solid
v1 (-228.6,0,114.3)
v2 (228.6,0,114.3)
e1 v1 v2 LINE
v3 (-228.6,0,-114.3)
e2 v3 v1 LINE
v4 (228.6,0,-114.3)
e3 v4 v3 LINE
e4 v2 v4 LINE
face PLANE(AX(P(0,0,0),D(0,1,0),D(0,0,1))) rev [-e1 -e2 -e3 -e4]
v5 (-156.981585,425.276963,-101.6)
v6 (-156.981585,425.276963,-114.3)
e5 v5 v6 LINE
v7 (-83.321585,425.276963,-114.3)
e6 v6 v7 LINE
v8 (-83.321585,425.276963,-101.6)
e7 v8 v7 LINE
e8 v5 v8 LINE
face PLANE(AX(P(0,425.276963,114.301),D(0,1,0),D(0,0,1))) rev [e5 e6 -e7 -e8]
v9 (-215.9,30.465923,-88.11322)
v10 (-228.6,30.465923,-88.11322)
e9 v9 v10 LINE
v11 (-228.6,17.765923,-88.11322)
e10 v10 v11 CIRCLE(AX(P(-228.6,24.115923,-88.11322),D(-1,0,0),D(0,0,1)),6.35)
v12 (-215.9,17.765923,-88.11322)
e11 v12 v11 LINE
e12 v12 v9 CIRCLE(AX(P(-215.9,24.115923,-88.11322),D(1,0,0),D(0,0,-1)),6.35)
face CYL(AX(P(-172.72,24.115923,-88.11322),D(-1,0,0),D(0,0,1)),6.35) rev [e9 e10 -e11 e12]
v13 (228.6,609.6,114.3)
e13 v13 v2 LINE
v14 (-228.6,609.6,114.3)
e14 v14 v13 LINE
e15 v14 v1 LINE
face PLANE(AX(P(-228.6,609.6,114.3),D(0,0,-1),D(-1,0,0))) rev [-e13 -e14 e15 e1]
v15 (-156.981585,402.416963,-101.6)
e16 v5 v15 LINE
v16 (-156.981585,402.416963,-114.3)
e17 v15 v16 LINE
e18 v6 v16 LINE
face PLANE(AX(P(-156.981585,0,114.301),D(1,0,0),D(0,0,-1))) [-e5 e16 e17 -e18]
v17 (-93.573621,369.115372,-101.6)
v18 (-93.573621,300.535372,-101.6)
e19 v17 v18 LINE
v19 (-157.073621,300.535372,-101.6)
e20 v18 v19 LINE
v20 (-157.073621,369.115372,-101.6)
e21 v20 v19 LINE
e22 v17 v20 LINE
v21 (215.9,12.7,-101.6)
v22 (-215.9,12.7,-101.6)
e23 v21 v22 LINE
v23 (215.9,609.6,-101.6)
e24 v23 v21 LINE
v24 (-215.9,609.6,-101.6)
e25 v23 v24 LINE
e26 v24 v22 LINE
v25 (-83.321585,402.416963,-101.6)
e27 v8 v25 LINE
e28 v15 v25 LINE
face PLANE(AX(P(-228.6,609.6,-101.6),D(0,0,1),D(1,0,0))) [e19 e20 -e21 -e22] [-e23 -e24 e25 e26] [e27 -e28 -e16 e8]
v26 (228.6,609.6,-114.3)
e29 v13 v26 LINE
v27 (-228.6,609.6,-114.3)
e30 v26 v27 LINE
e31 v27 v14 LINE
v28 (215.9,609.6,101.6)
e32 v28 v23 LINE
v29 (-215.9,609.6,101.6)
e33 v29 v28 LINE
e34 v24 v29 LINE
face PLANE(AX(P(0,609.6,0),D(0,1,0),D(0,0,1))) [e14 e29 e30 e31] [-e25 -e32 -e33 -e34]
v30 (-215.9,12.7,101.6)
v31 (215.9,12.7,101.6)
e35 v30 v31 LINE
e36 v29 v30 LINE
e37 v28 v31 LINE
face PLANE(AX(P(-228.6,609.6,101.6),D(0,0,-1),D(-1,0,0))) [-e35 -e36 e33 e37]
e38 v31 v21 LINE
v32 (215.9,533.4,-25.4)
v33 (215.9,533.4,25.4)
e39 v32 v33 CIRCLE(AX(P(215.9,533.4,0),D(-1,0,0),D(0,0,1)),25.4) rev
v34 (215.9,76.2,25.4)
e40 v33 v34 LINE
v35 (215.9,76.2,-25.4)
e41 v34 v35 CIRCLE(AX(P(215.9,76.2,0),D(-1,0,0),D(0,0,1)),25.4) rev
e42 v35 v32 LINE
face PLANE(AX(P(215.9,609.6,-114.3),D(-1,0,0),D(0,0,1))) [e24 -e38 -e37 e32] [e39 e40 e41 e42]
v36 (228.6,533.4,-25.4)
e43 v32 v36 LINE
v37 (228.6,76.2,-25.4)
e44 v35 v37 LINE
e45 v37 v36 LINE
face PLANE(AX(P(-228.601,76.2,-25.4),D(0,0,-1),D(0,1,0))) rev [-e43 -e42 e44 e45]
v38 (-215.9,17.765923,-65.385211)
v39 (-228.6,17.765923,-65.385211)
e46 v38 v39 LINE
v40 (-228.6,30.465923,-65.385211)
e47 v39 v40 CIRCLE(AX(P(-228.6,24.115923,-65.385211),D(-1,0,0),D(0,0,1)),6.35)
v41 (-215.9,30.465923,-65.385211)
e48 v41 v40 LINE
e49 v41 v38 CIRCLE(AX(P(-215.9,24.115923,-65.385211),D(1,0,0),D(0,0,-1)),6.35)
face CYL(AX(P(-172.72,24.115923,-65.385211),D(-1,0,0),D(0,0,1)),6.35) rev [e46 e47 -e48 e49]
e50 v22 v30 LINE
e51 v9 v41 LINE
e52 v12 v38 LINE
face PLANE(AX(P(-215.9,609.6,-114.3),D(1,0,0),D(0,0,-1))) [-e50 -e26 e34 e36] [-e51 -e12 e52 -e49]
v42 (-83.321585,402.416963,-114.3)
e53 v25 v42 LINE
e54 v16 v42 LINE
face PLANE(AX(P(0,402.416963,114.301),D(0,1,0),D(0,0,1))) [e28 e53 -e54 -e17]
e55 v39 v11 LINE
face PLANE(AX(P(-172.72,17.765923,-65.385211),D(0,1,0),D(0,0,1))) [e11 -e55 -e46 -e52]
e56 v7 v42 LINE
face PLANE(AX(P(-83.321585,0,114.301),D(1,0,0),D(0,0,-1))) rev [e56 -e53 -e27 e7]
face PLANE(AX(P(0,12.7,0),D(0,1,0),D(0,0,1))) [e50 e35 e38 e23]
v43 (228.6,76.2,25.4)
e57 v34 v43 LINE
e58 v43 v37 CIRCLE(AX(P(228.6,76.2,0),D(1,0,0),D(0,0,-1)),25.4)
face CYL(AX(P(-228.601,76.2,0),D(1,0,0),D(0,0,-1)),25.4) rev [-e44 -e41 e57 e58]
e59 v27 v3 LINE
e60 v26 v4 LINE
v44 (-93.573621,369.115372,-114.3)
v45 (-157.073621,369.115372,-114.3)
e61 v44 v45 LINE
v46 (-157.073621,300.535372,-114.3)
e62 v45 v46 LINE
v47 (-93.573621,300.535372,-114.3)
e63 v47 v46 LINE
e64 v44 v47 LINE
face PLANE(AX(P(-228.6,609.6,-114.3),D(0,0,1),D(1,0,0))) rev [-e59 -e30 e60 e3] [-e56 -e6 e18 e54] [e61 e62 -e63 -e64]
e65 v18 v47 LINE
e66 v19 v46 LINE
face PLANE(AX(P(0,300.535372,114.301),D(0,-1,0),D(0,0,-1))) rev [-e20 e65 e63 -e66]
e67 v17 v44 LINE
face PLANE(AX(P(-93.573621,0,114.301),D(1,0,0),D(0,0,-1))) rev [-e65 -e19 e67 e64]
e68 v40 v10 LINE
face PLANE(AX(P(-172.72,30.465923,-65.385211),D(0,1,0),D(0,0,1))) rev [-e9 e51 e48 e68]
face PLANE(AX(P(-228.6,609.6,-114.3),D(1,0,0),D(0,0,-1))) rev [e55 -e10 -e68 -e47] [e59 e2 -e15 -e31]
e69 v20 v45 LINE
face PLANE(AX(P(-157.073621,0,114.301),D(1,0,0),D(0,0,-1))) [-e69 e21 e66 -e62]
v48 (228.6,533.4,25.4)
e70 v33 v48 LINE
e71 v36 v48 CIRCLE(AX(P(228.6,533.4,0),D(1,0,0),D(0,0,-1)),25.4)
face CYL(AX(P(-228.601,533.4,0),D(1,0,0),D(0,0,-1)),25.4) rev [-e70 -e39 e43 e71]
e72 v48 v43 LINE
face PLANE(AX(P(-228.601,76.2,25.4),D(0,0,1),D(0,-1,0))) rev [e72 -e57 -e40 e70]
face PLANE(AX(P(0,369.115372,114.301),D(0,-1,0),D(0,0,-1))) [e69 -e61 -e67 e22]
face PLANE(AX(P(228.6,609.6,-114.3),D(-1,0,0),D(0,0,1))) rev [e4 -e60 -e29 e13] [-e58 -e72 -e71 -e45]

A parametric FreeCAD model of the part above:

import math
import FreeCAD as App
import Part
import Sketcher
Q = App.Units.Quantity


def faces_at(feature, points):
    """Names of the faces that lie closest to the given points."""
    faces = feature.Shape.Faces
    near = lambda p: min(range(len(faces)), key=lambda i: faces[i].distToShape(Part.Vertex(*p))[0])
    return sorted({f"Face{near(p) + 1}" for p in points})

doc = App.newDocument("Part")
body = doc.addObject("PartDesign::Body", "Body")

# Sketch on XZ plane
sketch1 = doc.addObject("Sketcher::SketchObject", "Sketch")
body.addObject(sketch1)
sketch1.AttachmentSupport = (doc.XZ_Plane, [""])
sketch1.MapMode = "FlatFace"
sketch1.addGeometry([
    Part.LineSegment(App.Vector(-228.6, -114.3, 0), App.Vector(-228.6, 114.3, 0)),
    Part.LineSegment(App.Vector(-228.6, 114.3, 0), App.Vector(228.6, 114.3, 0)),
    Part.LineSegment(App.Vector(228.6, 114.3, 0), App.Vector(228.6, -114.3, 0)),
    Part.LineSegment(App.Vector(228.6, -114.3, 0), App.Vector(-228.6, -114.3, 0)),
], False)
sketch1.addConstraint([
    Sketcher.Constraint("Coincident", 0, 2, 1, 1),
    Sketcher.Constraint("Coincident", 1, 2, 2, 1),
    Sketcher.Constraint("Coincident", 2, 2, 3, 1),
    Sketcher.Constraint("Coincident", 3, 2, 0, 1),
    Sketcher.Constraint("Vertical", 0),
    Sketcher.Constraint("Horizontal", 1),
    Sketcher.Constraint("Vertical", 2),
    Sketcher.Constraint("Horizontal", 3),
    Sketcher.Constraint("Symmetric", 0, 2, 2, 2, -1, 1),
    Sketcher.Constraint("DistanceX", 1, 1, 1, 2, Q("18 in")),
    Sketcher.Constraint("DistanceY", 0, 1, 0, 2, Q("9 in")),
])
pad1 = doc.addObject("PartDesign::Pad", "Pad")
body.addObject(pad1)
pad1.Profile = sketch1
pad1.Length = Q("24 in")
pad1.Reversed = True
doc.recompute()

thickness = doc.addObject("PartDesign::Thickness", "Thickness")
body.addObject(thickness)
thickness.Base = (pad1, faces_at(pad1, [(0, 609.6, 0)]))
thickness.Value = Q("0.5 in")
thickness.Reversed = True
thickness.Join = "Intersection"

# Sketch on YZ plane
sketch2 = doc.addObject("Sketcher::SketchObject", "Sketch001")
body.addObject(sketch2)
sketch2.AttachmentSupport = (doc.YZ_Plane, [""])
sketch2.MapMode = "FlatFace"
sketch2.AttachmentOffset = App.Placement(App.Vector(0, 0, 9 * 25.4), App.Rotation())
sketch2.addGeometry([
    Part.LineSegment(App.Vector(533.4, 25.4, 0), App.Vector(76.2, 25.4, 0)),
    Part.ArcOfCircle(Part.Circle(App.Vector(76.2, 0, 0), App.Vector(0, 0, 1), 25.4), math.radians(90), math.radians(270)),
    Part.LineSegment(App.Vector(76.2, -25.4, 0), App.Vector(533.4, -25.4, 0)),
    Part.ArcOfCircle(Part.Circle(App.Vector(533.4, 0, 0), App.Vector(0, 0, 1), 25.4), math.radians(-90), math.radians(90)),
], False)
sketch2.addConstraint([
    Sketcher.Constraint("Tangent", 0, 2, 1, 1),
    Sketcher.Constraint("Tangent", 1, 2, 2, 1),
    Sketcher.Constraint("Tangent", 2, 2, 3, 1),
    Sketcher.Constraint("Tangent", 3, 2, 0, 1),
    Sketcher.Constraint("Horizontal", 0),
    Sketcher.Constraint("Horizontal", 2),
    Sketcher.Constraint("PointOnObject", 1, 3, -1),
    Sketcher.Constraint("Radius", 1, Q("1 in")),
    Sketcher.Constraint("DistanceX", 0, 2, 0, 1, Q("18 in")),
    Sketcher.Constraint("DistanceX", -1, 1, 1, 3, Q("3 in")),
])
pocket1 = doc.addObject("PartDesign::Pocket", "Pocket")
body.addObject(pocket1)
pocket1.Profile = sketch2
pocket1.Type = "UpToFirst"

# Sketch on XY plane
sketch3 = doc.addObject("Sketcher::SketchObject", "Sketch002")
body.addObject(sketch3)
sketch3.AttachmentSupport = (doc.XY_Plane, [""])
sketch3.MapMode = "FlatFace"
sketch3.AttachmentOffset = App.Placement(App.Vector(0, 0, -4.5 * 25.4), App.Rotation())
sketch3.addGeometry([
    Part.LineSegment(App.Vector(-93.573621, 369.115372, 0), App.Vector(-93.573621, 334.825372, 0)),
    Part.LineSegment(App.Vector(-93.573621, 334.825372, 0), App.Vector(-125.323621, 334.825372, 0)),
    Part.LineSegment(App.Vector(-125.323621, 334.825372, 0), App.Vector(-125.323621, 369.115372, 0)),
    Part.LineSegment(App.Vector(-125.323621, 369.115372, 0), App.Vector(-93.573621, 369.115372, 0)),
], False)
sketch3.addConstraint([
    Sketcher.Constraint("Coincident", 0, 2, 1, 1),
    Sketcher.Constraint("Coincident", 1, 2, 2, 1),
    Sketcher.Constraint("Coincident", 2, 2, 3, 1),
    Sketcher.Constraint("Coincident", 3, 2, 0, 1),
    Sketcher.Constraint("Vertical", 0),
    Sketcher.Constraint("Horizontal", 1),
    Sketcher.Constraint("Vertical", 2),
    Sketcher.Constraint("Horizontal", 3),
    Sketcher.Constraint("DistanceX", 1, 2, 1, 1, Q("1.25 in")),
    Sketcher.Constraint("DistanceY", 0, 2, 0, 1, Q("1.35 in")),
    Sketcher.Constraint("DistanceX", 0, 2, -1, 1, Q("93.573621 mm")),
    Sketcher.Constraint("DistanceY", -1, 1, 0, 2, Q("334.825372 mm")),
])
pocket2 = doc.addObject("PartDesign::Pocket", "Pocket001")
body.addObject(pocket2)
pocket2.Profile = sketch3
pocket2.Type = "UpToFirst"
pocket2.Reversed = True

# Sketch on XY plane
sketch4 = doc.addObject("Sketcher::SketchObject", "Sketch003")
body.addObject(sketch4)
sketch4.AttachmentSupport = (doc.XY_Plane, [""])
sketch4.MapMode = "FlatFace"
sketch4.AttachmentOffset = App.Placement(App.Vector(0, 0, -4.5 * 25.4), App.Rotation())
sketch4.addGeometry([
    Part.LineSegment(App.Vector(-93.573621, 334.825372, 0), App.Vector(-93.573621, 300.535372, 0)),
    Part.LineSegment(App.Vector(-93.573621, 300.535372, 0), App.Vector(-125.323621, 300.535372, 0)),
    Part.LineSegment(App.Vector(-125.323621, 300.535372, 0), App.Vector(-125.323621, 334.825372, 0)),
    Part.LineSegment(App.Vector(-125.323621, 334.825372, 0), App.Vector(-93.573621, 334.825372, 0)),
], False)
sketch4.addConstraint([
    Sketcher.Constraint("Coincident", 0, 2, 1, 1),
    Sketcher.Constraint("Coincident", 1, 2, 2, 1),
    Sketcher.Constraint("Coincident", 2, 2, 3, 1),
    Sketcher.Constraint("Coincident", 3, 2, 0, 1),
    Sketcher.Constraint("Vertical", 0),
    Sketcher.Constraint("Horizontal", 1),
    Sketcher.Constraint("Vertical", 2),
    Sketcher.Constraint("Horizontal", 3),
    Sketcher.Constraint("DistanceX", 1, 2, 1, 1, Q("1.25 in")),
    Sketcher.Constraint("DistanceY", 0, 2, 0, 1, Q("1.35 in")),
    Sketcher.Constraint("DistanceX", 0, 2, -1, 1, Q("93.573621 mm")),
    Sketcher.Constraint("DistanceY", -1, 1, 0, 2, Q("300.535372 mm")),
])
pocket3 = doc.addObject("PartDesign::Pocket", "Pocket002")
body.addObject(pocket3)
pocket3.Profile = sketch4
pocket3.Type = "UpToFirst"
pocket3.Reversed = True

# Sketch on XY plane
sketch5 = doc.addObject("Sketcher::SketchObject", "Sketch004")
body.addObject(sketch5)
sketch5.AttachmentSupport = (doc.XY_Plane, [""])
sketch5.MapMode = "FlatFace"
sketch5.AttachmentOffset = App.Placement(App.Vector(0, 0, -4.5 * 25.4), App.Rotation())
sketch5.addGeometry([
    Part.LineSegment(App.Vector(-125.323621, 334.825372, 0), App.Vector(-125.323621, 300.535372, 0)),
    Part.LineSegment(App.Vector(-125.323621, 300.535372, 0), App.Vector(-157.073621, 300.535372, 0)),
    Part.LineSegment(App.Vector(-157.073621, 300.535372, 0), App.Vector(-157.073621, 334.825372, 0)),
    Part.LineSegment(App.Vector(-157.073621, 334.825372, 0), App.Vector(-125.323621, 334.825372, 0)),
], False)
sketch5.addConstraint([
    Sketcher.Constraint("Coincident", 0, 2, 1, 1),
    Sketcher.Constraint("Coincident", 1, 2, 2, 1),
    Sketcher.Constraint("Coincident", 2, 2, 3, 1),
    Sketcher.Constraint("Coincident", 3, 2, 0, 1),
    Sketcher.Constraint("Vertical", 0),
    Sketcher.Constraint("Horizontal", 1),
    Sketcher.Constraint("Vertical", 2),
    Sketcher.Constraint("Horizontal", 3),
    Sketcher.Constraint("DistanceX", 1, 2, 1, 1, Q("1.25 in")),
    Sketcher.Constraint("DistanceY", 0, 2, 0, 1, Q("1.35 in")),
    Sketcher.Constraint("DistanceX", 0, 2, -1, 1, Q("125.323621 mm")),
    Sketcher.Constraint("DistanceY", -1, 1, 0, 2, Q("300.535372 mm")),
])
pocket4 = doc.addObject("PartDesign::Pocket", "Pocket003")
body.addObject(pocket4)
pocket4.Profile = sketch5
pocket4.Type = "UpToFirst"
pocket4.Reversed = True

# Sketch on XY plane
sketch6 = doc.addObject("Sketcher::SketchObject", "Sketch005")
body.addObject(sketch6)
sketch6.AttachmentSupport = (doc.XY_Plane, [""])
sketch6.MapMode = "FlatFace"
sketch6.AttachmentOffset = App.Placement(App.Vector(0, 0, -4.5 * 25.4), App.Rotation())
sketch6.addGeometry([
    Part.LineSegment(App.Vector(-125.323621, 369.115372, 0), App.Vector(-125.323621, 334.825372, 0)),
    Part.LineSegment(App.Vector(-125.323621, 334.825372, 0), App.Vector(-157.073621, 334.825372, 0)),
    Part.LineSegment(App.Vector(-157.073621, 334.825372, 0), App.Vector(-157.073621, 369.115372, 0)),
    Part.LineSegment(App.Vector(-157.073621, 369.115372, 0), App.Vector(-125.323621, 369.115372, 0)),
], False)
sketch6.addConstraint([
    Sketcher.Constraint("Coincident", 0, 2, 1, 1),
    Sketcher.Constraint("Coincident", 1, 2, 2, 1),
    Sketcher.Constraint("Coincident", 2, 2, 3, 1),
    Sketcher.Constraint("Coincident", 3, 2, 0, 1),
    Sketcher.Constraint("Vertical", 0),
    Sketcher.Constraint("Horizontal", 1),
    Sketcher.Constraint("Vertical", 2),
    Sketcher.Constraint("Horizontal", 3),
    Sketcher.Constraint("DistanceX", 1, 2, 1, 1, Q("1.25 in")),
    Sketcher.Constraint("DistanceY", 0, 2, 0, 1, Q("1.35 in")),
    Sketcher.Constraint("DistanceX", 0, 2, -1, 1, Q("125.323621 mm")),
    Sketcher.Constraint("DistanceY", -1, 1, 0, 2, Q("334.825372 mm")),
])
pocket5 = doc.addObject("PartDesign::Pocket", "Pocket004")
body.addObject(pocket5)
pocket5.Profile = sketch6
pocket5.Type = "UpToFirst"
pocket5.Reversed = True

# Sketch on XY plane
sketch7 = doc.addObject("Sketcher::SketchObject", "Sketch006")
body.addObject(sketch7)
sketch7.AttachmentSupport = (doc.XY_Plane, [""])
sketch7.MapMode = "FlatFace"
sketch7.AttachmentOffset = App.Placement(App.Vector(0, 0, -4.5 * 25.4), App.Rotation())
sketch7.addGeometry([
    Part.LineSegment(App.Vector(-120.151585, 425.276963, 0), App.Vector(-120.151585, 413.846963, 0)),
    Part.LineSegment(App.Vector(-120.151585, 413.846963, 0), App.Vector(-156.981585, 413.846963, 0)),
    Part.LineSegment(App.Vector(-156.981585, 413.846963, 0), App.Vector(-156.981585, 425.276963, 0)),
    Part.LineSegment(App.Vector(-156.981585, 425.276963, 0), App.Vector(-120.151585, 425.276963, 0)),
], False)
sketch7.addConstraint([
    Sketcher.Constraint("Coincident", 0, 2, 1, 1),
    Sketcher.Constraint("Coincident", 1, 2, 2, 1),
    Sketcher.Constraint("Coincident", 2, 2, 3, 1),
    Sketcher.Constraint("Coincident", 3, 2, 0, 1),
    Sketcher.Constraint("Vertical", 0),
    Sketcher.Constraint("Horizontal", 1),
    Sketcher.Constraint("Vertical", 2),
    Sketcher.Constraint("Horizontal", 3),
    Sketcher.Constraint("DistanceX", 1, 2, 1, 1, Q("1.45 in")),
    Sketcher.Constraint("DistanceY", 0, 2, 0, 1, Q("0.45 in")),
    Sketcher.Constraint("DistanceX", 0, 2, -1, 1, Q("120.151585 mm")),
    Sketcher.Constraint("DistanceY", -1, 1, 0, 2, Q("413.846963 mm")),
])
pocket6 = doc.addObject("PartDesign::Pocket", "Pocket005")
body.addObject(pocket6)
pocket6.Profile = sketch7
pocket6.Type = "UpToFirst"
pocket6.Reversed = True

# Sketch on XY plane
sketch8 = doc.addObject("Sketcher::SketchObject", "Sketch007")
body.addObject(sketch8)
sketch8.AttachmentSupport = (doc.XY_Plane, [""])
sketch8.MapMode = "FlatFace"
sketch8.AttachmentOffset = App.Placement(App.Vector(0, 0, -4.5 * 25.4), App.Rotation())
sketch8.addGeometry([
    Part.LineSegment(App.Vector(-120.151585, 413.846963, 0), App.Vector(-120.151585, 402.416963, 0)),
    Part.LineSegment(App.Vector(-120.151585, 402.416963, 0), App.Vector(-156.981585, 402.416963, 0)),
    Part.LineSegment(App.Vector(-156.981585, 402.416963, 0), App.Vector(-156.981585, 413.846963, 0)),
    Part.LineSegment(App.Vector(-156.981585, 413.846963, 0), App.Vector(-120.151585, 413.846963, 0)),
], False)
sketch8.addConstraint([
    Sketcher.Constraint("Coincident", 0, 2, 1, 1),
    Sketcher.Constraint("Coincident", 1, 2, 2, 1),
    Sketcher.Constraint("Coincident", 2, 2, 3, 1),
    Sketcher.Constraint("Coincident", 3, 2, 0, 1),
    Sketcher.Constraint("Vertical", 0),
    Sketcher.Constraint("Horizontal", 1),
    Sketcher.Constraint("Vertical", 2),
    Sketcher.Constraint("Horizontal", 3),
    Sketcher.Constraint("DistanceX", 1, 2, 1, 1, Q("1.45 in")),
    Sketcher.Constraint("DistanceY", 0, 2, 0, 1, Q("0.45 in")),
    Sketcher.Constraint("DistanceX", 0, 2, -1, 1, Q("120.151585 mm")),
    Sketcher.Constraint("DistanceY", -1, 1, 0, 2, Q("402.416963 mm")),
])
pocket7 = doc.addObject("PartDesign::Pocket", "Pocket006")
body.addObject(pocket7)
pocket7.Profile = sketch8
pocket7.Type = "UpToFirst"
pocket7.Reversed = True

# Sketch on XY plane
sketch9 = doc.addObject("Sketcher::SketchObject", "Sketch008")
body.addObject(sketch9)
sketch9.AttachmentSupport = (doc.XY_Plane, [""])
sketch9.MapMode = "FlatFace"
sketch9.AttachmentOffset = App.Placement(App.Vector(0, 0, -4.5 * 25.4), App.Rotation())
sketch9.addGeometry([
    Part.LineSegment(App.Vector(-83.321585, 425.276963, 0), App.Vector(-83.321585, 413.846963, 0)),
    Part.LineSegment(App.Vector(-83.321585, 413.846963, 0), App.Vector(-120.151585, 413.846963, 0)),
    Part.LineSegment(App.Vector(-120.151585, 413.846963, 0), App.Vector(-120.151585, 425.276963, 0)),
    Part.LineSegment(App.Vector(-120.151585, 425.276963, 0), App.Vector(-83.321585, 425.276963, 0)),
], False)
sketch9.addConstraint([
    Sketcher.Constraint("Coincident", 0, 2, 1, 1),
    Sketcher.Constraint("Coincident", 1, 2, 2, 1),
    Sketcher.Constraint("Coincident", 2, 2, 3, 1),
    Sketcher.Constraint("Coincident", 3, 2, 0, 1),
    Sketcher.Constraint("Vertical", 0),
    Sketcher.Constraint("Horizontal", 1),
    Sketcher.Constraint("Vertical", 2),
    Sketcher.Constraint("Horizontal", 3),
    Sketcher.Constraint("DistanceX", 1, 2, 1, 1, Q("1.45 in")),
    Sketcher.Constraint("DistanceY", 0, 2, 0, 1, Q("0.45 in")),
    Sketcher.Constraint("DistanceX", 0, 2, -1, 1, Q("83.321585 mm")),
    Sketcher.Constraint("DistanceY", -1, 1, 0, 2, Q("413.846963 mm")),
])
pocket8 = doc.addObject("PartDesign::Pocket", "Pocket007")
body.addObject(pocket8)
pocket8.Profile = sketch9
pocket8.Type = "UpToFirst"
pocket8.Reversed = True

# Sketch on XY plane
sketch10 = doc.addObject("Sketcher::SketchObject", "Sketch009")
body.addObject(sketch10)
sketch10.AttachmentSupport = (doc.XY_Plane, [""])
sketch10.MapMode = "FlatFace"
sketch10.AttachmentOffset = App.Placement(App.Vector(0, 0, -4.5 * 25.4), App.Rotation())
sketch10.addGeometry([
    Part.LineSegment(App.Vector(-83.321585, 413.846963, 0), App.Vector(-83.321585, 402.416963, 0)),
    Part.LineSegment(App.Vector(-83.321585, 402.416963, 0), App.Vector(-120.151585, 402.416963, 0)),
    Part.LineSegment(App.Vector(-120.151585, 402.416963, 0), App.Vector(-120.151585, 413.846963, 0)),
    Part.LineSegment(App.Vector(-120.151585, 413.846963, 0), App.Vector(-83.321585, 413.846963, 0)),
], False)
sketch10.addConstraint([
    Sketcher.Constraint("Coincident", 0, 2, 1, 1),
    Sketcher.Constraint("Coincident", 1, 2, 2, 1),
    Sketcher.Constraint("Coincident", 2, 2, 3, 1),
    Sketcher.Constraint("Coincident", 3, 2, 0, 1),
    Sketcher.Constraint("Vertical", 0),
    Sketcher.Constraint("Horizontal", 1),
    Sketcher.Constraint("Vertical", 2),
    Sketcher.Constraint("Horizontal", 3),
    Sketcher.Constraint("DistanceX", 1, 2, 1, 1, Q("1.45 in")),
    Sketcher.Constraint("DistanceY", 0, 2, 0, 1, Q("0.45 in")),
    Sketcher.Constraint("DistanceX", 0, 2, -1, 1, Q("83.321585 mm")),
    Sketcher.Constraint("DistanceY", -1, 1, 0, 2, Q("402.416963 mm")),
])
pocket9 = doc.addObject("PartDesign::Pocket", "Pocket008")
body.addObject(pocket9)
pocket9.Profile = sketch10
pocket9.Type = "UpToFirst"
pocket9.Reversed = True

# Sketch on YZ plane
sketch11 = doc.addObject("Sketcher::SketchObject", "Sketch010")
body.addObject(sketch11)
sketch11.AttachmentSupport = (doc.YZ_Plane, [""])
sketch11.MapMode = "FlatFace"
sketch11.AttachmentOffset = App.Placement(App.Vector(0, 0, -9 * 25.4), App.Rotation())
sketch11.addGeometry([
    Part.LineSegment(App.Vector(17.765923, -88.11322, 0), App.Vector(17.765923, -65.385211, 0)),
    Part.ArcOfCircle(Part.Circle(App.Vector(24.115923, -65.385211, 0), App.Vector(0, 0, 1), 6.35), math.radians(0), math.radians(180)),
    Part.LineSegment(App.Vector(30.465923, -65.385211, 0), App.Vector(30.465923, -88.11322, 0)),
    Part.ArcOfCircle(Part.Circle(App.Vector(24.115923, -88.11322, 0), App.Vector(0, 0, 1), 6.35), math.radians(180), math.radians(360)),
], False)
sketch11.addConstraint([
    Sketcher.Constraint("Tangent", 0, 2, 1, 2),
    Sketcher.Constraint("Tangent", 1, 1, 2, 1),
    Sketcher.Constraint("Tangent", 2, 2, 3, 2),
    Sketcher.Constraint("Tangent", 3, 1, 0, 1),
    Sketcher.Constraint("Vertical", 0),
    Sketcher.Constraint("Vertical", 2),
    Sketcher.Constraint("Radius", 1, Q("0.25 in")),
    Sketcher.Constraint("DistanceY", 0, 1, 0, 2, Q("22.728009 mm")),
    Sketcher.Constraint("DistanceY", 1, 3, -1, 1, Q("65.385211 mm")),
    Sketcher.Constraint("DistanceX", -1, 1, 1, 3, Q("24.115923 mm")),
])
pocket10 = doc.addObject("PartDesign::Pocket", "Pocket009")
body.addObject(pocket10)
pocket10.Profile = sketch11
pocket10.Length = Q("2.2 in")
pocket10.Reversed = True

doc.recompute()
